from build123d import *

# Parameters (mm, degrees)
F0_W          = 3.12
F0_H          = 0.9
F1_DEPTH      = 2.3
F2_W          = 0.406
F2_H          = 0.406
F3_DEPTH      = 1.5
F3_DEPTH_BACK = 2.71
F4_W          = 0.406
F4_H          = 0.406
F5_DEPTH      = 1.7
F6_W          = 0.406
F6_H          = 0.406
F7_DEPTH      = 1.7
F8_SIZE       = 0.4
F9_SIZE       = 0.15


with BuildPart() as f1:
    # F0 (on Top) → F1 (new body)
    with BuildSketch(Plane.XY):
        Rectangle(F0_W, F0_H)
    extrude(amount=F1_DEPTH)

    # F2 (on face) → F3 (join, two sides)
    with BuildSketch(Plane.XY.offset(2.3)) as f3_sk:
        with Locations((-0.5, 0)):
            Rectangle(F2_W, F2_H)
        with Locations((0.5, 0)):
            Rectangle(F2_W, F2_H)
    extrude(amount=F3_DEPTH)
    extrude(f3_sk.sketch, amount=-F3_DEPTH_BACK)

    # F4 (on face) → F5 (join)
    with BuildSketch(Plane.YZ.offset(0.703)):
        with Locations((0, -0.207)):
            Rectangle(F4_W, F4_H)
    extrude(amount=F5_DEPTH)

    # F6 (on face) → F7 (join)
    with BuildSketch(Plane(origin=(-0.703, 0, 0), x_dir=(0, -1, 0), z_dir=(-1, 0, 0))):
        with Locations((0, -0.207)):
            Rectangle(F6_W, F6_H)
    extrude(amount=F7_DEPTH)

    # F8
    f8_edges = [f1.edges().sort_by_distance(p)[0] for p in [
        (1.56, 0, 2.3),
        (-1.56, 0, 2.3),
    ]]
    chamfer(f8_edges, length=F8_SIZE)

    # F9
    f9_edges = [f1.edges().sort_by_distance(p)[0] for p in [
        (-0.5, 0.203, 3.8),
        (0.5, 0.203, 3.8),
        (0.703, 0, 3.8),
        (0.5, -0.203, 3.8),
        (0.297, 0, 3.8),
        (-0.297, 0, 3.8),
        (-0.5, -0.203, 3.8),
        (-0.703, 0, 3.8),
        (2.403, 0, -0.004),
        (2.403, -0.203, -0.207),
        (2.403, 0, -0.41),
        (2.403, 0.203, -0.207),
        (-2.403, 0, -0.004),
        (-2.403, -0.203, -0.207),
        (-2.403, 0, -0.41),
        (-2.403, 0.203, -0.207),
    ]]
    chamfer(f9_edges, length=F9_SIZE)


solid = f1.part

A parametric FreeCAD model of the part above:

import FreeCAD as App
import Part
import Sketcher

V = App.Vector
Q = App.Units.Quantity


def edges_at(feature, points):
    """Names of the edges that pass closest to the given points."""
    edges = feature.Shape.Edges
    near = lambda p: min(range(len(edges)), key=lambda i: edges[i].distToShape(Part.Vertex(*p))[0])
    return sorted({f"Edge{near(p) + 1}" for p in points})


def add_polygon(sketch, points):
    """Adds a closed chain of lines whose ends are joined by coincident constraints."""
    first, n = sketch.GeometryCount, len(points)
    for a, b in zip(points, points[1:] + points[:1]):
        sketch.addGeometry(Part.LineSegment(App.Vector(*a, 0), App.Vector(*b, 0)), False)
    for i in range(n):
        sketch.addConstraint(Sketcher.Constraint("Coincident", first + i, 2, first + (i + 1) % n, 1))

doc = App.newDocument("Part")
body = doc.addObject("PartDesign::Body", "Body")

# Sketch on XY plane
sketch1 = body.newObject("Sketcher::SketchObject", "Sketch")
sketch1.AttachmentSupport = (doc.getObject("XY_Plane"), [""])
sketch1.MapMode = "FlatFace"
add_polygon(sketch1, [(-1.6, 0.5), (-1.6, -0.5), (1.6, -0.5), (1.6, 0.5)])  # lines 0-3
sketch1.addConstraint(Sketcher.Constraint("Vertical", 0))
sketch1.addConstraint(Sketcher.Constraint("Horizontal", 1))
sketch1.addConstraint(Sketcher.Constraint("Vertical", 2))
sketch1.addConstraint(Sketcher.Constraint("Horizontal", 3))
sketch1.addConstraint(Sketcher.Constraint("Symmetric", 0, 2, 2, 2, -1, 1))
sketch1.addConstraint(Sketcher.Constraint("DistanceY", 0, 2, 0, 1, Q("0.9 mm")))
sketch1.addConstraint(Sketcher.Constraint("DistanceX", 1, 1, 1, 2, Q("3.12 mm")))
pad1 = body.newObject("PartDesign::Pad", "Pad")
pad1.Profile = sketch1
pad1.Length = 2.3

# Sketch on XY plane
sketch2 = body.newObject("Sketcher::SketchObject", "Sketch001")
sketch2.AttachmentSupport = (doc.getObject("XY_Plane"), [""])
sketch2.MapMode = "FlatFace"
sketch2.AttachmentOffset = App.Placement(V(0, 0, 2.3), App.Rotation())
add_polygon(sketch2, [(-0.7, 0.2), (-0.7, -0.2), (-0.3, -0.2), (-0.3, 0.2)])  # lines 0-3
add_polygon(sketch2, [(0.3, 0.2), (0.3, -0.2), (0.7, -0.2), (0.7, 0.2)])  # lines 4-7
sketch2.addConstraint(Sketcher.Constraint("Vertical", 0))
sketch2.addConstraint(Sketcher.Constraint("Horizontal", 1))
sketch2.addConstraint(Sketcher.Constraint("Vertical", 2))
sketch2.addConstraint(Sketcher.Constraint("Horizontal", 3))
sketch2.addConstraint(Sketcher.Constraint("Vertical", 4))
sketch2.addConstraint(Sketcher.Constraint("Horizontal", 5))
sketch2.addConstraint(Sketcher.Constraint("Vertical", 6))
sketch2.addConstraint(Sketcher.Constraint("Horizontal", 7))
sketch2.addConstraint(Sketcher.Constraint("Symmetric", 2, 2, 4, 2, -1, 1))
sketch2.addConstraint(Sketcher.Constraint("Symmetric", 0, 2, 6, 2, -1, 1))
sketch2.addConstraint(Sketcher.Constraint("Horizontal", 1, 2, 4, 2))
sketch2.addConstraint(Sketcher.Constraint("Equal", 7, 0))
sketch2.addConstraint(Sketcher.Constraint("DistanceX", 0, 2, 4, 2, Q("1 mm")))
sketch2.addConstraint(Sketcher.Constraint("DistanceX", 1, 1, 1, 2, Q("0.406 mm")))
pad2 = body.newObject("PartDesign::Pad", "Pad001")
pad2.Profile = sketch2
pad2.Type = "TwoLengths"
pad2.Length = 1.5
pad2.Length2 = 2.71

# Sketch on YZ plane
sketch3 = body.newObject("Sketcher::SketchObject", "Sketch002")
sketch3.AttachmentSupport = (doc.getObject("YZ_Plane"), [""])
sketch3.MapMode = "FlatFace"
sketch3.AttachmentOffset = App.Placement(V(0, 0, 0.703), App.Rotation())
add_polygon(sketch3, [(-0.2, 0), (-0.2, -0.41), (0.2, -0.41), (0.2, 0)])  # lines 0-3
sketch3.addConstraint(Sketcher.Constraint("Vertical", 0))
sketch3.addConstraint(Sketcher.Constraint("Horizontal", 1))
sketch3.addConstraint(Sketcher.Constraint("Vertical", 2))
sketch3.addConstraint(Sketcher.Constraint("Horizontal", 3))
sketch3.addConstraint(Sketcher.Constraint("Equal", 3, 0))
sketch3.addConstraint(Sketcher.Constraint("DistanceX", 1, 1, 1, 2, Q("0.406 mm")))
sketch3.addConstraint(Sketcher.Constraint("DistanceY", 0, 2, -1, 1, Q("0.41 mm")))
sketch3.addConstraint(Sketcher.Constraint("DistanceX", 0, 2, -1, 1, Q("0.203 mm")))
pad3 = body.newObject("PartDesign::Pad", "Pad002")
pad3.Profile = sketch3
pad3.Length = 1.7

# Sketch on YZ plane
sketch4 = body.newObject("Sketcher::SketchObject", "Sketch003")
sketch4.AttachmentSupport = (doc.getObject("YZ_Plane"), [""])
sketch4.MapMode = "FlatFace"
sketch4.AttachmentOffset = App.Placement(V(0, 0, -0.703), App.Rotation())
add_polygon(sketch4, [(0.2, 0), (0.2, -0.41), (-0.2, -0.41), (-0.2, 0)])  # lines 0-3
sketch4.addConstraint(Sketcher.Constraint("Vertical", 0))
sketch4.addConstraint(Sketcher.Constraint("Horizontal", 1))
sketch4.addConstraint(Sketcher.Constraint("Vertical", 2))
sketch4.addConstraint(Sketcher.Constraint("Horizontal", 3))
sketch4.addConstraint(Sketcher.Constraint("Equal", 3, 0))
sketch4.addConstraint(Sketcher.Constraint("DistanceX", 1, 2, 1, 1, Q("0.406 mm")))
sketch4.addConstraint(Sketcher.Constraint("DistanceY", 0, 2, -1, 1, Q("0.41 mm")))
sketch4.addConstraint(Sketcher.Constraint("DistanceX", -1, 1, 0, 2, Q("0.203 mm")))
pad4 = body.newObject("PartDesign::Pad", "Pad003")
pad4.Profile = sketch4
pad4.Length = 1.7
pad4.Reversed = True
doc.recompute()

chamfer = body.newObject("PartDesign::Chamfer", "Chamfer")
chamfer.Base = (pad4, edges_at(pad4, [(1.56, 0, 2.3), (-1.56, 0, 2.3)]))
chamfer.Size = 0.4
doc.recompute()

chamfer2 = body.newObject("PartDesign::Chamfer", "Chamfer001")
chamfer2.Base = (chamfer, edges_at(chamfer, [
    (-0.5, 0.203, 3.8),
    (0.5, 0.203, 3.8),
    (0.703, 0, 3.8),
    (0.5, -0.203, 3.8),
    (0.297, 0, 3.8),
    (-0.297, 0, 3.8),
    (-0.5, -0.203, 3.8),
    (-0.703, 0, 3.8),
    (2.403, 0, -0.004),
    (2.403, -0.203, -0.207),
    (2.403, 0, -0.41),
    (2.403, 0.203, -0.207),
    (-2.403, 0, -0.004),
    (-2.403, -0.203, -0.207),
    (-2.403, 0, -0.41),
    (-2.403, 0.203, -0.207),
]))
chamfer2.Size = 0.15

doc.recompute()
